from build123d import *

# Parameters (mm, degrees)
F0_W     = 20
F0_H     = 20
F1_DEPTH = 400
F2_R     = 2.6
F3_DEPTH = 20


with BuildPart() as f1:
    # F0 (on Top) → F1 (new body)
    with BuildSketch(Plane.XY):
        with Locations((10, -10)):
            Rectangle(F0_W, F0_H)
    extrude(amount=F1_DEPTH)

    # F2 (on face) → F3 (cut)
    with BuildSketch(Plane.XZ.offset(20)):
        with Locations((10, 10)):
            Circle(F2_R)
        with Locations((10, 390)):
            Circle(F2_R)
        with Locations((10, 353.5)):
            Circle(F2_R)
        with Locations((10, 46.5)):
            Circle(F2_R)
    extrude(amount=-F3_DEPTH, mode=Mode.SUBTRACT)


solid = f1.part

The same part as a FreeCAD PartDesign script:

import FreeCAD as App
import Part
import Sketcher

V = App.Vector


def add_polygon(sketch, points):
    """Adds a closed chain of lines whose ends are joined by coincident constraints."""
    first, n = sketch.GeometryCount, len(points)
    for a, b in zip(points, points[1:] + points[:1]):
        sketch.addGeometry(Part.LineSegment(App.Vector(*a, 0), App.Vector(*b, 0)), False)
    for i in range(n):
        sketch.addConstraint(Sketcher.Constraint("Coincident", first + i, 2, first + (i + 1) % n, 1))

doc = App.newDocument("Part")
body = doc.addObject("PartDesign::Body", "Body")

# Sketch on XY plane
sketch1 = body.newObject("Sketcher::SketchObject", "Sketch")
sketch1.AttachmentSupport = (doc.getObject("XY_Plane"), [""])
sketch1.MapMode = "FlatFace"
add_polygon(sketch1, [(0, 0), (0, -20), (20, -20), (20, 0)])  # lines 0-3
sketch1.addConstraint(Sketcher.Constraint("Vertical", 0))
sketch1.addConstraint(Sketcher.Constraint("Horizontal", 1))
sketch1.addConstraint(Sketcher.Constraint("Vertical", 2))
sketch1.addConstraint(Sketcher.Constraint("Horizontal", 3))
sketch1.addConstraint(Sketcher.Constraint("Coincident", 3, 2, -1, 1))
sketch1.addConstraint(Sketcher.Constraint("Equal", 3, 0))
sketch1.addConstraint(Sketcher.Constraint("DistanceX", 1, 1, 1, 2, 20.0))
pad1 = body.newObject("PartDesign::Pad", "Pad")
pad1.Profile = sketch1
pad1.Length = 400

# Sketch on XZ plane
sketch2 = body.newObject("Sketcher::SketchObject", "Sketch001")
sketch2.AttachmentSupport = (doc.getObject("XZ_Plane"), [""])
sketch2.MapMode = "FlatFace"
sketch2.AttachmentOffset = App.Placement(V(0, 0, 20), App.Rotation())
sketch2.addGeometry(Part.Circle(V(10, 10, 0), V(0, 0, 1), 2.6), False)
sketch2.addGeometry(Part.Circle(V(10, 390, 0), V(0, 0, 1), 2.6), False)
sketch2.addGeometry(Part.Circle(V(10, 353.5, 0), V(0, 0, 1), 2.6), False)
sketch2.addGeometry(Part.Circle(V(10, 46.5, 0), V(0, 0, 1), 2.6), False)
sketch2.addConstraint(Sketcher.Constraint("Equal", 0, 1))
sketch2.addConstraint(Sketcher.Constraint("Equal", 1, 2))
sketch2.addConstraint(Sketcher.Constraint("Equal", 2, 3))
sketch2.addConstraint(Sketcher.Constraint("Vertical", 0, 3, 1, 3))
sketch2.addConstraint(Sketcher.Constraint("Vertical", 1, 3, 2, 3))
sketch2.addConstraint(Sketcher.Constraint("Vertical", 2, 3, 3, 3))
sketch2.addConstraint(Sketcher.Constraint("Diameter", 0, 5.2))
sketch2.addConstraint(Sketcher.Constraint("DistanceX", -1, 1, 0, 3, 10.0))
sketch2.addConstraint(Sketcher.Constraint("DistanceY", -1, 1, 0, 3, 10.0))
sketch2.addConstraint(Sketcher.Constraint("DistanceY", -1, 1, 1, 3, 390.0))
sketch2.addConstraint(Sketcher.Constraint("DistanceY", 3, 3, 2, 3, 307.0))
sketch2.addConstraint(Sketcher.Constraint("DistanceY", -1, 1, 2, 3, 353.5))
pocket1 = body.newObject("PartDesign::Pocket", "Pocket")
pocket1.Profile = sketch2
pocket1.Length = 20

doc.recompute()
